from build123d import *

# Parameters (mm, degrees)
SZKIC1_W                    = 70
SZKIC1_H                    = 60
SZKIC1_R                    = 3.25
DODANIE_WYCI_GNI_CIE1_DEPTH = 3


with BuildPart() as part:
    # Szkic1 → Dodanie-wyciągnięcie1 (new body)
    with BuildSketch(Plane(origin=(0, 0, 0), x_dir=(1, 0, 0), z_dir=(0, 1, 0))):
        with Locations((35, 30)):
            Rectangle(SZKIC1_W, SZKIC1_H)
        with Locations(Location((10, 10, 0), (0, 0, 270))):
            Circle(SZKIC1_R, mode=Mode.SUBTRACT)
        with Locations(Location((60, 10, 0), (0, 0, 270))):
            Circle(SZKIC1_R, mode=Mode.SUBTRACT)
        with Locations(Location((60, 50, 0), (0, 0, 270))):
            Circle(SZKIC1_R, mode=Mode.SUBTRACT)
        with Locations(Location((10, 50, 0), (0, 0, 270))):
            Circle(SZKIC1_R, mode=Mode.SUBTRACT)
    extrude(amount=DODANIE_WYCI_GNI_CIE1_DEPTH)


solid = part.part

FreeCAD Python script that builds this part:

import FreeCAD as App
import Part
import Sketcher
Q = App.Units.Quantity

doc = App.newDocument("Part")
body = doc.addObject("PartDesign::Body", "Body")

# Sketch on XZ plane
sketch1 = doc.addObject("Sketcher::SketchObject", "Sketch")
body.addObject(sketch1)
sketch1.AttachmentSupport = (doc.XZ_Plane, [""])
sketch1.MapMode = "FlatFace"
sketch1.addGeometry([
    Part.LineSegment(App.Vector(0, -60, 0), App.Vector(0, 0, 0)),  # 0
    Part.LineSegment(App.Vector(0, 0, 0), App.Vector(70, 0, 0)),  # 1
    Part.LineSegment(App.Vector(70, 0, 0), App.Vector(70, -60, 0)),  # 2
    Part.LineSegment(App.Vector(70, -60, 0), App.Vector(0, -60, 0)),  # 3
    Part.Circle(App.Vector(10, -10, 0), App.Vector(0, 0, 1), 3.2),  # 4
    Part.Circle(App.Vector(60, -10, 0), App.Vector(0, 0, 1), 3.2),  # 5
    Part.Circle(App.Vector(10, -50, 0), App.Vector(0, 0, 1), 3.2),  # 6
    Part.Circle(App.Vector(60, -50, 0), App.Vector(0, 0, 1), 3.2),  # 7
], False)
sketch1.addConstraint([
    Sketcher.Constraint("Coincident", 0, 2, 1, 1),
    Sketcher.Constraint("Coincident", 1, 2, 2, 1),
    Sketcher.Constraint("Coincident", 2, 2, 3, 1),
    Sketcher.Constraint("Coincident", 3, 2, 0, 1),
    Sketcher.Constraint("Vertical", 0),
    Sketcher.Constraint("Horizontal", 1),
    Sketcher.Constraint("Vertical", 2),
    Sketcher.Constraint("Horizontal", 3),
    Sketcher.Constraint("Coincident", 0, 2, -1, 1),
    Sketcher.Constraint("Equal", 4, 5),
    Sketcher.Constraint("Equal", 5, 6),
    Sketcher.Constraint("Equal", 6, 7),
    Sketcher.Constraint("Horizontal", 4, 3, 5, 3),
    Sketcher.Constraint("Horizontal", 6, 3, 7, 3),
    Sketcher.Constraint("Vertical", 4, 3, 6, 3),
    Sketcher.Constraint("Vertical", 5, 3, 7, 3),
    Sketcher.Constraint("Diameter", 4, Q("6.5 mm")),
    Sketcher.Constraint("DistanceX", 1, 1, 1, 2, Q("70 mm")),
    Sketcher.Constraint("DistanceY", 0, 1, 0, 2, Q("60 mm")),
    Sketcher.Constraint("DistanceX", -1, 1, 4, 3, Q("10 mm")),
    Sketcher.Constraint("DistanceY", 4, 3, -1, 1, Q("10 mm")),
    Sketcher.Constraint("DistanceX", -1, 1, 5, 3, Q("60 mm")),
    Sketcher.Constraint("DistanceY", 6, 3, -1, 1, Q("50 mm")),
])
pad1 = doc.addObject("PartDesign::Pad", "Pad")
body.addObject(pad1)
pad1.Profile = sketch1
pad1.Length = 3
pad1.Reversed = True

doc.recompute()
